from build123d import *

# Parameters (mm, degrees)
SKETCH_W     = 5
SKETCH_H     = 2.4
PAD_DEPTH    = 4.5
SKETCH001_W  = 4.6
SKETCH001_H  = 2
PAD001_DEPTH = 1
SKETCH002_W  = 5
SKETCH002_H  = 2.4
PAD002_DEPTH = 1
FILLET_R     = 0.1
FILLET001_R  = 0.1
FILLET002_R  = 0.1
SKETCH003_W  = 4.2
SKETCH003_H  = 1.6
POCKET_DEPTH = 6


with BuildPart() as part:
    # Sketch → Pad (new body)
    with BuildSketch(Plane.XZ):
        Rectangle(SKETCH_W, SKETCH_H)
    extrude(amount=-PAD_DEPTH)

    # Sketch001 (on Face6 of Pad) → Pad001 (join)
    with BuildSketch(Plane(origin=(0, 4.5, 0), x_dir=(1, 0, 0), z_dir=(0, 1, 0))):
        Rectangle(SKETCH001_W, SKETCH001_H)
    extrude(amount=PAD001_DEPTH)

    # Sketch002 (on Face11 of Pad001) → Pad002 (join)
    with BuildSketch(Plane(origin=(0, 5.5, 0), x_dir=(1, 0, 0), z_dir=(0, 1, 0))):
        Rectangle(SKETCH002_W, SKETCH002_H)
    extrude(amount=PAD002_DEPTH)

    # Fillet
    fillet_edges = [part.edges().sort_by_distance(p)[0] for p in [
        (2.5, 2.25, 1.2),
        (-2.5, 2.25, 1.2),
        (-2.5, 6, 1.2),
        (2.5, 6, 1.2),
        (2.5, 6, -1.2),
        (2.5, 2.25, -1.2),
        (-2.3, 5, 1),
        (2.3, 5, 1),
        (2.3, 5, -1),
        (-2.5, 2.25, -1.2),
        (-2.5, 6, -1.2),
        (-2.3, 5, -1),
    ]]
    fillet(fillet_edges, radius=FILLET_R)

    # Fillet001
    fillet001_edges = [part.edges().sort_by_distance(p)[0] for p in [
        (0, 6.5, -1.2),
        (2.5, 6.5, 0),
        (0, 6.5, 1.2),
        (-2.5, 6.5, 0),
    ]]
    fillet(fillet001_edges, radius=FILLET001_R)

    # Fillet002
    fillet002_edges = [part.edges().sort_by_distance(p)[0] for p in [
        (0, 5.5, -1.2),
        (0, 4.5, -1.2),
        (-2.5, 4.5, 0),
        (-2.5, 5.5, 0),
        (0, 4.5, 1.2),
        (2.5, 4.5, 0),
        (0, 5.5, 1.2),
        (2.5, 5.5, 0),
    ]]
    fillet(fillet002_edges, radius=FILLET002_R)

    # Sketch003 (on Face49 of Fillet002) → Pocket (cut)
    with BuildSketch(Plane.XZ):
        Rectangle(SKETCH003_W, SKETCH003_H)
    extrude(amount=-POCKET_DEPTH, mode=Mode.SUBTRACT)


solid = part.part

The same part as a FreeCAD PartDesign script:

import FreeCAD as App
import Part
import Sketcher
from FreeCAD import Vector


def edges_at(feature, points):
    """Names of the edges that pass closest to the given points."""
    edges = feature.Shape.Edges
    near = lambda p: min(range(len(edges)), key=lambda i: edges[i].distToShape(Part.Vertex(*p))[0])
    return sorted({f"Edge{near(p) + 1}" for p in points})


def add_polygon(sketch, points):
    """Adds a closed chain of lines whose ends are joined by coincident constraints."""
    first, n = sketch.GeometryCount, len(points)
    for a, b in zip(points, points[1:] + points[:1]):
        sketch.addGeometry(Part.LineSegment(App.Vector(*a, 0), App.Vector(*b, 0)), False)
    for i in range(n):
        sketch.addConstraint(Sketcher.Constraint("Coincident", first + i, 2, first + (i + 1) % n, 1))

doc = App.newDocument("Part")
params = doc.addObject("Spreadsheet::Sheet", "Params")
for row, (alias, value) in enumerate([
    ("sketch1_width", "5 mm"),
    ("sketch1_height", "2.4 mm"),
    ("pad1_length", "4.5 mm"),
    ("sketch2_height", "2 mm"),
    ("sketch2_width", "4.6 mm"),
    ("pad2_length", "1 mm"),
    ("sketch3_width", "5 mm"),
    ("sketch3_height", "2.4 mm"),
    ("pad3_length", "1 mm"),
    ("fillet_radius", "0.1 mm"),
    ("fillet2_radius", "0.1 mm"),
    ("fillet3_radius", "0.1 mm"),
    ("sketch4_width", "4.2 mm"),
    ("sketch4_height", "1.6 mm"),
    ("pocket1_length", "6 mm"),
], start=1):
    params.set(f"A{row}", alias)
    params.set(f"B{row}", "=" + value)
    params.setAlias(f"B{row}", alias)

body = doc.addObject("PartDesign::Body", "Body")

# Sketch on XZ plane
sketch1 = body.newObject("Sketcher::SketchObject", "Sketch")
sketch1.AttachmentSupport = (doc.getObject("XZ_Plane"), [""])
sketch1.MapMode = "FlatFace"
add_polygon(sketch1, [(-2.5, 1.2), (-2.5, -1.2), (2.5, -1.2), (2.5, 1.2)])  # lines 0-3
sketch1.addConstraint([
    Sketcher.Constraint("Vertical", 0),
    Sketcher.Constraint("Horizontal", 1),
    Sketcher.Constraint("Vertical", 2),
    Sketcher.Constraint("Horizontal", 3),
    Sketcher.Constraint("Symmetric", 0, 2, 2, 2, -1, 1),
    Sketcher.Constraint("DistanceX", 1, 1, 1, 2, 5.0),
    Sketcher.Constraint("DistanceY", 0, 2, 0, 1, 2.4),
])
sketch1.setExpression("Constraints[9]", "Params.sketch1_width")
sketch1.setExpression("Constraints[10]", "Params.sketch1_height")
pad1 = body.newObject("PartDesign::Pad", "Pad")
pad1.Profile = sketch1
pad1.setExpression("Length", "Params.pad1_length")
pad1.Reversed = True

# Sketch on XZ plane
sketch2 = body.newObject("Sketcher::SketchObject", "Sketch001")
sketch2.AttachmentSupport = (doc.getObject("XZ_Plane"), [""])
sketch2.MapMode = "FlatFace"
sketch2.AttachmentOffset = App.Placement(Vector(0, 0, -4.5), App.Rotation())
add_polygon(sketch2, [(-2.3, -1), (-2.3, 1), (2.3, 1), (2.3, -1)])  # lines 0-3
sketch2.addConstraint([
    Sketcher.Constraint("Vertical", 0),
    Sketcher.Constraint("Horizontal", 1),
    Sketcher.Constraint("Vertical", 2),
    Sketcher.Constraint("Horizontal", 3),
    Sketcher.Constraint("Symmetric", 0, 2, 2, 2, -1, 1),
    Sketcher.Constraint("DistanceY", 0, 1, 0, 2, 2.0),
    Sketcher.Constraint("DistanceX", 1, 1, 1, 2, 4.6),
])
sketch2.setExpression("Constraints[9]", "Params.sketch2_height")
sketch2.setExpression("Constraints[10]", "Params.sketch2_width")
pad2 = body.newObject("PartDesign::Pad", "Pad001")
pad2.Profile = sketch2
pad2.setExpression("Length", "Params.pad2_length")
pad2.Reversed = True

# Sketch on XZ plane
sketch3 = body.newObject("Sketcher::SketchObject", "Sketch002")
sketch3.AttachmentSupport = (doc.getObject("XZ_Plane"), [""])
sketch3.MapMode = "FlatFace"
sketch3.AttachmentOffset = App.Placement(Vector(0, 0, -5.5), App.Rotation())
add_polygon(sketch3, [(-2.5, -1.2), (-2.5, 1.2), (2.5, 1.2), (2.5, -1.2)])  # lines 0-3
sketch3.addConstraint([
    Sketcher.Constraint("Vertical", 0),
    Sketcher.Constraint("Horizontal", 1),
    Sketcher.Constraint("Vertical", 2),
    Sketcher.Constraint("Horizontal", 3),
    Sketcher.Constraint("Symmetric", 0, 2, 2, 2, -1, 1),
    Sketcher.Constraint("DistanceX", 1, 1, 1, 2, 5.0),
    Sketcher.Constraint("DistanceY", 0, 1, 0, 2, 2.4),
])
sketch3.setExpression("Constraints[9]", "Params.sketch3_width")
sketch3.setExpression("Constraints[10]", "Params.sketch3_height")
pad3 = body.newObject("PartDesign::Pad", "Pad002")
pad3.Profile = sketch3
pad3.setExpression("Length", "Params.pad3_length")
pad3.Reversed = True
doc.recompute()

fillet = body.newObject("PartDesign::Fillet", "Fillet")
fillet.Base = (pad3, edges_at(pad3, [
    (2.5, 2.25, 1.2),
    (-2.5, 2.25, 1.2),
    (-2.5, 6, 1.2),
    (2.5, 6, 1.2),
    (2.5, 6, -1.2),
    (2.5, 2.25, -1.2),
    (-2.3, 5, 1),
    (2.3, 5, 1),
    (2.3, 5, -1),
    (-2.5, 2.25, -1.2),
    (-2.5, 6, -1.2),
    (-2.3, 5, -1),
]))
fillet.setExpression("Radius", "Params.fillet_radius")
doc.recompute()

fillet2 = body.newObject("PartDesign::Fillet", "Fillet001")
fillet2.Base = (fillet, edges_at(fillet, [
    (0, 6.5, -1.2),
    (2.5, 6.5, 0),
    (0, 6.5, 1.2),
    (-2.5, 6.5, 0),
]))
fillet2.setExpression("Radius", "Params.fillet2_radius")
doc.recompute()

fillet3 = body.newObject("PartDesign::Fillet", "Fillet002")
fillet3.Base = (fillet2, edges_at(fillet2, [
    (0, 5.5, -1.2),
    (0, 4.5, -1.2),
    (-2.5, 4.5, 0),
    (-2.5, 5.5, 0),
    (0, 4.5, 1.2),
    (2.5, 4.5, 0),
    (0, 5.5, 1.2),
    (2.5, 5.5, 0),
]))
fillet3.setExpression("Radius", "Params.fillet3_radius")

# Sketch on XZ plane
sketch4 = body.newObject("Sketcher::SketchObject", "Sketch003")
sketch4.AttachmentSupport = (doc.getObject("XZ_Plane"), [""])
sketch4.MapMode = "FlatFace"
add_polygon(sketch4, [(-2.1, 0.8), (-2.1, -0.8), (2.1, -0.8), (2.1, 0.8)])  # lines 0-3
sketch4.addConstraint([
    Sketcher.Constraint("Vertical", 0),
    Sketcher.Constraint("Horizontal", 1),
    Sketcher.Constraint("Vertical", 2),
    Sketcher.Constraint("Horizontal", 3),
    Sketcher.Constraint("Symmetric", 0, 2, 2, 2, -1, 1),
    Sketcher.Constraint("DistanceX", 1, 1, 1, 2, 4.2),
    Sketcher.Constraint("DistanceY", 0, 2, 0, 1, 1.6),
])
sketch4.setExpression("Constraints[9]", "Params.sketch4_width")
sketch4.setExpression("Constraints[10]", "Params.sketch4_height")
pocket1 = body.newObject("PartDesign::Pocket", "Pocket")
pocket1.Profile = sketch4
pocket1.setExpression("Length", "Params.pocket1_length")

doc.recompute()
